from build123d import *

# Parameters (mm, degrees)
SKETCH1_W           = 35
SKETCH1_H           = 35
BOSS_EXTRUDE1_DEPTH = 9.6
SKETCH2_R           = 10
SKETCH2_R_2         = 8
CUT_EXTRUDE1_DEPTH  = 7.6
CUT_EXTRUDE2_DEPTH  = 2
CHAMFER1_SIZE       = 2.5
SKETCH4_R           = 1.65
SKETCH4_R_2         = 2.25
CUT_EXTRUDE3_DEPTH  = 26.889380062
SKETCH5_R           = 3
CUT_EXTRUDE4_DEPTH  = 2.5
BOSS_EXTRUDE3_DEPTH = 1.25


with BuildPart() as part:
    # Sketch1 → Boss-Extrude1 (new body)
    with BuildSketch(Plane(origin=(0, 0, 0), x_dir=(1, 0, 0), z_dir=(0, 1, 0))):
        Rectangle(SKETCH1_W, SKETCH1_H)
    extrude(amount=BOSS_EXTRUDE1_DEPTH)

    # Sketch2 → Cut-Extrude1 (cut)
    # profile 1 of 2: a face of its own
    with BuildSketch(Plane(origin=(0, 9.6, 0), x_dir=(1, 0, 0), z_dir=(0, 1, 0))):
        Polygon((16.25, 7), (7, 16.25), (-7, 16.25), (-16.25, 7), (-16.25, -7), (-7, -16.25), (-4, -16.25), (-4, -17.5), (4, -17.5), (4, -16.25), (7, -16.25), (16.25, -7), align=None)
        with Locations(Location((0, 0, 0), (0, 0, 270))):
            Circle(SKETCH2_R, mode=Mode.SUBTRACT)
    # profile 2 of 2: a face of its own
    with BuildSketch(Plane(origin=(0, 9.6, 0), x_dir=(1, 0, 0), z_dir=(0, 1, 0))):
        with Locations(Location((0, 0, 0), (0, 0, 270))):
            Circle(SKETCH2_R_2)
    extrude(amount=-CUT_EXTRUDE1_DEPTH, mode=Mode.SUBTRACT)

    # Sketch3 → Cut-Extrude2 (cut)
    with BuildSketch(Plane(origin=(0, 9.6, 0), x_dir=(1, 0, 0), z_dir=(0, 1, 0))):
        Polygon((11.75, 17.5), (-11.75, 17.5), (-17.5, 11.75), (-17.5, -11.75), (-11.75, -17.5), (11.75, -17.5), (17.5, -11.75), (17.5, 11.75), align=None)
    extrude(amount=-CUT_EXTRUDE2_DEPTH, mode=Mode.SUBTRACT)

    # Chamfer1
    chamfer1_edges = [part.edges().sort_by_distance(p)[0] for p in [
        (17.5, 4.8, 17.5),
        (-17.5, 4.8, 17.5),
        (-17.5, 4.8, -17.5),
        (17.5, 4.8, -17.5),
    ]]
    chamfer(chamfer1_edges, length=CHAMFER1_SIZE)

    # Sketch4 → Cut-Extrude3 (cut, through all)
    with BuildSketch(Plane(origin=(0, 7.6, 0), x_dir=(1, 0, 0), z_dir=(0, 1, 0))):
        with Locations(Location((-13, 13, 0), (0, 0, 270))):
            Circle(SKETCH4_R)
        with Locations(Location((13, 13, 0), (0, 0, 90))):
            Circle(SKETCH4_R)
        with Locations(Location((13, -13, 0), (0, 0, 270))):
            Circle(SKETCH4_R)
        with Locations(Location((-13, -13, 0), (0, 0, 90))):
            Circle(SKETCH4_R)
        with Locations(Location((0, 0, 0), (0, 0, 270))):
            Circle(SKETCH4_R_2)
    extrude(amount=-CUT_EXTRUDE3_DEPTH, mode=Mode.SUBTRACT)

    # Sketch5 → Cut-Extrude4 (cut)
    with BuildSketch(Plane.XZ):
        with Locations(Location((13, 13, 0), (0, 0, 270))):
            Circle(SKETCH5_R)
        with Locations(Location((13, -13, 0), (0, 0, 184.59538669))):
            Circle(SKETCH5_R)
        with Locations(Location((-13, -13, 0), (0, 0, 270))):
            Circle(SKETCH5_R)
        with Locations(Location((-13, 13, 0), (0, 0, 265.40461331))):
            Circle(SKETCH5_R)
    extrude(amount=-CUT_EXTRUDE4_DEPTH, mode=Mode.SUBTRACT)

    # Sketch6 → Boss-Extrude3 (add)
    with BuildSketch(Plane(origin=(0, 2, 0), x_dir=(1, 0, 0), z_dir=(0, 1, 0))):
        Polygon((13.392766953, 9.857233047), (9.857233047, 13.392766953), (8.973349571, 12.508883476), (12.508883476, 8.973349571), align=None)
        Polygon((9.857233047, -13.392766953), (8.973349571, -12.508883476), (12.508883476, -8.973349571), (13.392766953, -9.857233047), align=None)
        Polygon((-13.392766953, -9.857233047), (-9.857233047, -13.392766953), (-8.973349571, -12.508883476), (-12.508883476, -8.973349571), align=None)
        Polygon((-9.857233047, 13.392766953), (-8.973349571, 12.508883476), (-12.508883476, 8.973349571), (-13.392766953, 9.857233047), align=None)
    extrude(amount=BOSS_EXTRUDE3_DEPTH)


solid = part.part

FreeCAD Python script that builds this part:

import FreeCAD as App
import Part
import Sketcher
from FreeCAD import Vector


def edges_at(feature, points):
    """Names of the edges that pass closest to the given points."""
    edges = feature.Shape.Edges
    near = lambda p: min(range(len(edges)), key=lambda i: edges[i].distToShape(Part.Vertex(*p))[0])
    return sorted({f"Edge{near(p) + 1}" for p in points})

doc = App.newDocument("Part")
body = doc.addObject("PartDesign::Body", "Body")

# Sketch on XZ plane
sketch1 = doc.addObject("Sketcher::SketchObject", "Sketch")
body.addObject(sketch1)
sketch1.AttachmentSupport = (doc.XZ_Plane, [""])
sketch1.MapMode = "FlatFace"
sketch1.addGeometry(Part.LineSegment(Vector(-18, -18, 0), Vector(-18, 18, 0)), False)
sketch1.addGeometry(Part.LineSegment(Vector(-18, 18, 0), Vector(18, 18, 0)), False)
sketch1.addGeometry(Part.LineSegment(Vector(18, 18, 0), Vector(18, -18, 0)), False)
sketch1.addGeometry(Part.LineSegment(Vector(18, -18, 0), Vector(-18, -18, 0)), False)
sketch1.addConstraint(Sketcher.Constraint("Coincident", 0, 2, 1, 1))
sketch1.addConstraint(Sketcher.Constraint("Coincident", 1, 2, 2, 1))
sketch1.addConstraint(Sketcher.Constraint("Coincident", 2, 2, 3, 1))
sketch1.addConstraint(Sketcher.Constraint("Coincident", 3, 2, 0, 1))
sketch1.addConstraint(Sketcher.Constraint("Vertical", 0))
sketch1.addConstraint(Sketcher.Constraint("Horizontal", 1))
sketch1.addConstraint(Sketcher.Constraint("Vertical", 2))
sketch1.addConstraint(Sketcher.Constraint("Horizontal", 3))
sketch1.addConstraint(Sketcher.Constraint("Symmetric", 0, 2, 2, 2, -1, 1))
sketch1.addConstraint(Sketcher.Constraint("Equal", 3, 0))
sketch1.addConstraint(Sketcher.Constraint("DistanceX", 1, 1, 1, 2, 35.0))
pad1 = doc.addObject("PartDesign::Pad", "Pad")
body.addObject(pad1)
pad1.Profile = sketch1
pad1.Length = 9.6
pad1.Reversed = True

# Sketch on XZ plane
sketch2 = doc.addObject("Sketcher::SketchObject", "Sketch001")
body.addObject(sketch2)
sketch2.AttachmentSupport = (doc.XZ_Plane, [""])
sketch2.MapMode = "FlatFace"
sketch2.AttachmentOffset = App.Placement(Vector(0, 0, -9.6), App.Rotation())
sketch2.addGeometry(Part.LineSegment(Vector(16.2, -7, 0), Vector(7, -16.2, 0)), False)
sketch2.addGeometry(Part.LineSegment(Vector(7, -16.2, 0), Vector(-7, -16.2, 0)), False)
sketch2.addGeometry(Part.LineSegment(Vector(-7, -16.2, 0), Vector(-16.2, -7, 0)), False)
sketch2.addGeometry(Part.LineSegment(Vector(-16.2, -7, 0), Vector(-16.2, 7, 0)), False)
sketch2.addGeometry(Part.LineSegment(Vector(-16.2, 7, 0), Vector(-7, 16.2, 0)), False)
sketch2.addGeometry(Part.LineSegment(Vector(-7, 16.2, 0), Vector(-4, 16.2, 0)), False)
sketch2.addGeometry(Part.LineSegment(Vector(-4, 16.2, 0), Vector(-4, 17.5, 0)), False)
sketch2.addGeometry(Part.LineSegment(Vector(-4, 17.5, 0), Vector(4, 17.5, 0)), False)
sketch2.addGeometry(Part.LineSegment(Vector(4, 17.5, 0), Vector(4, 16.2, 0)), False)
sketch2.addGeometry(Part.LineSegment(Vector(4, 16.2, 0), Vector(7, 16.2, 0)), False)
sketch2.addGeometry(Part.LineSegment(Vector(7, 16.2, 0), Vector(16.2, 7, 0)), False)
sketch2.addGeometry(Part.LineSegment(Vector(16.2, 7, 0), Vector(16.2, -7, 0)), False)
sketch2.addGeometry(Part.Circle(Vector(0, 0, 0), Vector(0, 0, 1), 10), False)
sketch2.addGeometry(Part.Circle(Vector(0, 0, 0), Vector(0, 0, 1), 8), False)
sketch2.addConstraint(Sketcher.Constraint("Coincident", 0, 2, 1, 1))
sketch2.addConstraint(Sketcher.Constraint("Coincident", 1, 2, 2, 1))
sketch2.addConstraint(Sketcher.Constraint("Coincident", 2, 2, 3, 1))
sketch2.addConstraint(Sketcher.Constraint("Coincident", 3, 2, 4, 1))
sketch2.addConstraint(Sketcher.Constraint("Coincident", 4, 2, 5, 1))
sketch2.addConstraint(Sketcher.Constraint("Coincident", 5, 2, 6, 1))
sketch2.addConstraint(Sketcher.Constraint("Coincident", 6, 2, 7, 1))
sketch2.addConstraint(Sketcher.Constraint("Coincident", 7, 2, 8, 1))
sketch2.addConstraint(Sketcher.Constraint("Coincident", 8, 2, 9, 1))
sketch2.addConstraint(Sketcher.Constraint("Coincident", 9, 2, 10, 1))
sketch2.addConstraint(Sketcher.Constraint("Coincident", 10, 2, 11, 1))
sketch2.addConstraint(Sketcher.Constraint("Coincident", 11, 2, 0, 1))
sketch2.addConstraint(Sketcher.Constraint("Horizontal", 1))
sketch2.addConstraint(Sketcher.Constraint("Vertical", 3))
sketch2.addConstraint(Sketcher.Constraint("Horizontal", 5))
sketch2.addConstraint(Sketcher.Constraint("Vertical", 6))
sketch2.addConstraint(Sketcher.Constraint("Horizontal", 7))
sketch2.addConstraint(Sketcher.Constraint("Vertical", 8))
sketch2.addConstraint(Sketcher.Constraint("Horizontal", 9))
sketch2.addConstraint(Sketcher.Constraint("Vertical", 11))
sketch2.addConstraint(Sketcher.Constraint("Coincident", 12, 3, -1, 1))
sketch2.addConstraint(Sketcher.Constraint("Coincident", 13, 3, -1, 1))
sketch2.addConstraint(Sketcher.Constraint("Symmetric", 0, 2, 4, 2, -1, 1))
sketch2.addConstraint(Sketcher.Constraint("Symmetric", 1, 2, 9, 2, -1, 1))
sketch2.addConstraint(Sketcher.Constraint("Symmetric", 2, 2, 10, 2, -1, 1))
sketch2.addConstraint(Sketcher.Constraint("Perpendicular", 0, 2))
sketch2.addConstraint(Sketcher.Constraint("Perpendicular", 2, 4))
sketch2.addConstraint(Sketcher.Constraint("Horizontal", 3, 2, 10, 2))
sketch2.addConstraint(Sketcher.Constraint("Vertical", 1, 2, 4, 2))
sketch2.addConstraint(Sketcher.Constraint("Equal", 5, 9))
sketch2.addConstraint(Sketcher.Constraint("Equal", 1, 3))
sketch2.addConstraint(Sketcher.Constraint("Diameter", 12, 20.0))
sketch2.addConstraint(Sketcher.Constraint("Diameter", 13, 16.0))
sketch2.addConstraint(Sketcher.Constraint("DistanceX", 1, 2, 1, 1, 14.0))
sketch2.addConstraint(Sketcher.Constraint("DistanceX", 5, 1, 5, 2, 3.0))
sketch2.addConstraint(Sketcher.Constraint("DistanceY", 6, 1, 6, 2, 1.25))
sketch2.addConstraint(Sketcher.Constraint("DistanceY", -1, 1, 6, 2, 17.5))
pocket1 = doc.addObject("PartDesign::Pocket", "Pocket")
body.addObject(pocket1)
pocket1.Profile = sketch2
pocket1.Length = 7.6
pocket1.Reversed = True

# Sketch on XZ plane
sketch3 = doc.addObject("Sketcher::SketchObject", "Sketch002")
body.addObject(sketch3)
sketch3.AttachmentSupport = (doc.XZ_Plane, [""])
sketch3.MapMode = "FlatFace"
sketch3.AttachmentOffset = App.Placement(Vector(0, 0, -9.6), App.Rotation())
sketch3.addGeometry(Part.LineSegment(Vector(12, -18, 0), Vector(-12, -18, 0)), False)
sketch3.addGeometry(Part.LineSegment(Vector(-12, -18, 0), Vector(-18, -12, 0)), False)
sketch3.addGeometry(Part.LineSegment(Vector(-18, -12, 0), Vector(-18, 12, 0)), False)
sketch3.addGeometry(Part.LineSegment(Vector(-18, 12, 0), Vector(-12, 18, 0)), False)
sketch3.addGeometry(Part.LineSegment(Vector(-12, 18, 0), Vector(12, 18, 0)), False)
sketch3.addGeometry(Part.LineSegment(Vector(12, 18, 0), Vector(18, 12, 0)), False)
sketch3.addGeometry(Part.LineSegment(Vector(18, 12, 0), Vector(18, -12, 0)), False)
sketch3.addGeometry(Part.LineSegment(Vector(18, -12, 0), Vector(12, -18, 0)), False)
sketch3.addConstraint(Sketcher.Constraint("Coincident", 0, 2, 1, 1))
sketch3.addConstraint(Sketcher.Constraint("Coincident", 1, 2, 2, 1))
sketch3.addConstraint(Sketcher.Constraint("Coincident", 2, 2, 3, 1))
sketch3.addConstraint(Sketcher.Constraint("Coincident", 3, 2, 4, 1))
sketch3.addConstraint(Sketcher.Constraint("Coincident", 4, 2, 5, 1))
sketch3.addConstraint(Sketcher.Constraint("Coincident", 5, 2, 6, 1))
sketch3.addConstraint(Sketcher.Constraint("Coincident", 6, 2, 7, 1))
sketch3.addConstraint(Sketcher.Constraint("Coincident", 7, 2, 0, 1))
sketch3.addConstraint(Sketcher.Constraint("Horizontal", 0))
sketch3.addConstraint(Sketcher.Constraint("Vertical", 2))
sketch3.addConstraint(Sketcher.Constraint("Horizontal", 4))
sketch3.addConstraint(Sketcher.Constraint("Vertical", 6))
sketch3.addConstraint(Sketcher.Constraint("Symmetric", 0, 2, 4, 2, -1, 1))
sketch3.addConstraint(Sketcher.Constraint("Symmetric", 1, 2, 5, 2, -1, 1))
sketch3.addConstraint(Sketcher.Constraint("Perpendicular", 1, 3))
sketch3.addConstraint(Sketcher.Constraint("Perpendicular", 5, 7))
sketch3.addConstraint(Sketcher.Constraint("Horizontal", 2, 2, 5, 2))
sketch3.addConstraint(Sketcher.Constraint("Horizontal", 1, 2, 6, 2))
sketch3.addConstraint(Sketcher.Constraint("Vertical", 0, 2, 3, 2))
sketch3.addConstraint(Sketcher.Constraint("Equal", 4, 2))
sketch3.addConstraint(Sketcher.Constraint("DistanceX", 0, 2, 0, 1, 23.5))
sketch3.addConstraint(Sketcher.Constraint("DistanceY", 0, 2, 3, 2, 35.0))
pocket2 = doc.addObject("PartDesign::Pocket", "Pocket001")
body.addObject(pocket2)
pocket2.Profile = sketch3
pocket2.Length = 2
pocket2.Reversed = True
doc.recompute()

chamfer = doc.addObject("PartDesign::Chamfer", "Chamfer")
body.addObject(chamfer)
chamfer.Base = (pocket2, edges_at(pocket2, [
    (17.5, 4.8, 17.5),
    (-17.5, 4.8, 17.5),
    (-17.5, 4.8, -17.5),
    (17.5, 4.8, -17.5),
]))
chamfer.Size = 2.5

# Sketch on XZ plane
sketch4 = doc.addObject("Sketcher::SketchObject", "Sketch003")
body.addObject(sketch4)
sketch4.AttachmentSupport = (doc.XZ_Plane, [""])
sketch4.MapMode = "FlatFace"
sketch4.AttachmentOffset = App.Placement(Vector(0, 0, -7.6), App.Rotation())
sketch4.addGeometry(Part.Circle(Vector(-13, -13, 0), Vector(0, 0, 1), 1.6), False)
sketch4.addGeometry(Part.Circle(Vector(13, -13, 0), Vector(0, 0, 1), 1.6), False)
sketch4.addGeometry(Part.Circle(Vector(13, 13, 0), Vector(0, 0, 1), 1.6), False)
sketch4.addGeometry(Part.Circle(Vector(-13, 13, 0), Vector(0, 0, 1), 1.6), False)
sketch4.addGeometry(Part.Circle(Vector(0, 0, 0), Vector(0, 0, 1), 2.2), False)
sketch4.addConstraint(Sketcher.Constraint("Coincident", 4, 3, -1, 1))
sketch4.addConstraint(Sketcher.Constraint("Equal", 0, 1))
sketch4.addConstraint(Sketcher.Constraint("Equal", 1, 2))
sketch4.addConstraint(Sketcher.Constraint("Equal", 2, 3))
sketch4.addConstraint(Sketcher.Constraint("Symmetric", 0, 3, 2, 3, -1, 1))
sketch4.addConstraint(Sketcher.Constraint("Symmetric", 1, 3, 3, 3, -1, 1))
sketch4.addConstraint(Sketcher.Constraint("Symmetric", 0, 3, 1, 3, -2))
sketch4.addConstraint(Sketcher.Constraint("Diameter", 0, 3.3))
sketch4.addConstraint(Sketcher.Constraint("Diameter", 4, 4.5))
sketch4.addConstraint(Sketcher.Constraint("DistanceX", 0, 3, -1, 1, 13.0))
sketch4.addConstraint(Sketcher.Constraint("DistanceY", 0, 3, -1, 1, 13.0))
pocket3 = doc.addObject("PartDesign::Pocket", "Pocket002")
body.addObject(pocket3)
pocket3.Profile = sketch4
pocket3.Type = "ThroughAll"
pocket3.Reversed = True

# Sketch on XZ plane
sketch5 = doc.addObject("Sketcher::SketchObject", "Sketch004")
body.addObject(sketch5)
sketch5.AttachmentSupport = (doc.XZ_Plane, [""])
sketch5.MapMode = "FlatFace"
sketch5.addGeometry(Part.Circle(Vector(13, 13, 0), Vector(0, 0, 1), 3), False)
sketch5.addGeometry(Part.Circle(Vector(13, -13, 0), Vector(0, 0, 1), 3), False)
sketch5.addGeometry(Part.Circle(Vector(-13, -13, 0), Vector(0, 0, 1), 3), False)
sketch5.addGeometry(Part.Circle(Vector(-13, 13, 0), Vector(0, 0, 1), 3), False)
sketch5.addConstraint(Sketcher.Constraint("Equal", 0, 1))
sketch5.addConstraint(Sketcher.Constraint("Equal", 1, 2))
sketch5.addConstraint(Sketcher.Constraint("Equal", 2, 3))
sketch5.addConstraint(Sketcher.Constraint("Symmetric", 0, 3, 2, 3, -1, 1))
sketch5.addConstraint(Sketcher.Constraint("Symmetric", 1, 3, 3, 3, -1, 1))
sketch5.addConstraint(Sketcher.Constraint("Symmetric", 1, 3, 2, 3, -2))
sketch5.addConstraint(Sketcher.Constraint("Diameter", 0, 6.0))
sketch5.addConstraint(Sketcher.Constraint("DistanceX", -1, 1, 0, 3, 13.0))
sketch5.addConstraint(Sketcher.Constraint("DistanceY", -1, 1, 0, 3, 13.0))
pocket4 = doc.addObject("PartDesign::Pocket", "Pocket003")
body.addObject(pocket4)
pocket4.Profile = sketch5
pocket4.Length = 2.5

# Sketch on XZ plane
sketch6 = doc.addObject("Sketcher::SketchObject", "Sketch005")
body.addObject(sketch6)
sketch6.AttachmentSupport = (doc.XZ_Plane, [""])
sketch6.MapMode = "FlatFace"
sketch6.AttachmentOffset = App.Placement(Vector(0, 0, -2), App.Rotation())
sketch6.addGeometry(Part.LineSegment(Vector(13.4, -9.9, 0), Vector(9.9, -13.4, 0)), False)
sketch6.addGeometry(Part.LineSegment(Vector(9.9, -13.4, 0), Vector(9, -12.5, 0)), False)
sketch6.addGeometry(Part.LineSegment(Vector(9, -12.5, 0), Vector(12.5, -9, 0)), False)
sketch6.addGeometry(Part.LineSegment(Vector(12.5, -9, 0), Vector(13.4, -9.9, 0)), False)
sketch6.addGeometry(Part.LineSegment(Vector(9, 12.5, 0), Vector(9.9, 13.4, 0)), False)
sketch6.addGeometry(Part.LineSegment(Vector(9.9, 13.4, 0), Vector(13.4, 9.9, 0)), False)
sketch6.addGeometry(Part.LineSegment(Vector(13.4, 9.9, 0), Vector(12.5, 9, 0)), False)
sketch6.addGeometry(Part.LineSegment(Vector(12.5, 9, 0), Vector(9, 12.5, 0)), False)
sketch6.addGeometry(Part.LineSegment(Vector(-13.4, 9.9, 0), Vector(-9.9, 13.4, 0)), False)
sketch6.addGeometry(Part.LineSegment(Vector(-9.9, 13.4, 0), Vector(-9, 12.5, 0)), False)
sketch6.addGeometry(Part.LineSegment(Vector(-9, 12.5, 0), Vector(-12.5, 9, 0)), False)
sketch6.addGeometry(Part.LineSegment(Vector(-12.5, 9, 0), Vector(-13.4, 9.9, 0)), False)
sketch6.addGeometry(Part.LineSegment(Vector(-9, -12.5, 0), Vector(-9.9, -13.4, 0)), False)
sketch6.addGeometry(Part.LineSegment(Vector(-9.9, -13.4, 0), Vector(-13.4, -9.9, 0)), False)
sketch6.addGeometry(Part.LineSegment(Vector(-13.4, -9.9, 0), Vector(-12.5, -9, 0)), False)
sketch6.addGeometry(Part.LineSegment(Vector(-12.5, -9, 0), Vector(-9, -12.5, 0)), False)
sketch6.addConstraint(Sketcher.Constraint("Coincident", 0, 2, 1, 1))
sketch6.addConstraint(Sketcher.Constraint("Coincident", 1, 2, 2, 1))
sketch6.addConstraint(Sketcher.Constraint("Coincident", 2, 2, 3, 1))
sketch6.addConstraint(Sketcher.Constraint("Coincident", 3, 2, 0, 1))
sketch6.addConstraint(Sketcher.Constraint("Coincident", 4, 2, 5, 1))
sketch6.addConstraint(Sketcher.Constraint("Coincident", 5, 2, 6, 1))
sketch6.addConstraint(Sketcher.Constraint("Coincident", 6, 2, 7, 1))
sketch6.addConstraint(Sketcher.Constraint("Coincident", 7, 2, 4, 1))
sketch6.addConstraint(Sketcher.Constraint("Coincident", 8, 2, 9, 1))
sketch6.addConstraint(Sketcher.Constraint("Coincident", 9, 2, 10, 1))
sketch6.addConstraint(Sketcher.Constraint("Coincident", 10, 2, 11, 1))
sketch6.addConstraint(Sketcher.Constraint("Coincident", 11, 2, 8, 1))
sketch6.addConstraint(Sketcher.Constraint("Coincident", 12, 2, 13, 1))
sketch6.addConstraint(Sketcher.Constraint("Coincident", 13, 2, 14, 1))
sketch6.addConstraint(Sketcher.Constraint("Coincident", 14, 2, 15, 1))
sketch6.addConstraint(Sketcher.Constraint("Coincident", 15, 2, 12, 1))
sketch6.addConstraint(Sketcher.Constraint("Symmetric", 0, 2, 8, 2, -1, 1))
sketch6.addConstraint(Sketcher.Constraint("Symmetric", 1, 2, 9, 2, -1, 1))
sketch6.addConstraint(Sketcher.Constraint("Symmetric", 2, 2, 10, 2, -1, 1))
sketch6.addConstraint(Sketcher.Constraint("Symmetric", 3, 2, 11, 2, -1, 1))
sketch6.addConstraint(Sketcher.Constraint("Symmetric", 4, 2, 12, 2, -1, 1))
sketch6.addConstraint(Sketcher.Constraint("Symmetric", 5, 2, 13, 2, -1, 1))
sketch6.addConstraint(Sketcher.Constraint("Symmetric", 6, 2, 14, 2, -1, 1))
sketch6.addConstraint(Sketcher.Constraint("Symmetric", 7, 2, 15, 2, -1, 1))
sketch6.addConstraint(Sketcher.Constraint("Symmetric", 4, 2, 8, 2, -2))
sketch6.addConstraint(Sketcher.Constraint("Symmetric", 7, 2, 9, 2, -2))
sketch6.addConstraint(Sketcher.Constraint("Symmetric", 6, 2, 10, 2, -2))
sketch6.addConstraint(Sketcher.Constraint("Symmetric", 5, 2, 11, 2, -2))
sketch6.addConstraint(Sketcher.Constraint("Perpendicular", 0, 1))
sketch6.addConstraint(Sketcher.Constraint("Perpendicular", 1, 2))
sketch6.addConstraint(Sketcher.Constraint("Perpendicular", 2, 3))
sketch6.addConstraint(Sketcher.Constraint("Perpendicular", 3, 4))
sketch6.addConstraint(Sketcher.Constraint("Distance", 0, 5.0))
sketch6.addConstraint(Sketcher.Constraint("Distance", 1, 1.25))
sketch6.addConstraint(Sketcher.Constraint("DistanceY", 3, 2, 4, 2, 23.25))
sketch6.addConstraint(Sketcher.Constraint("DistanceX", 8, 2, 5, 2, 23.25))
pad2 = doc.addObject("PartDesign::Pad", "Pad001")
body.addObject(pad2)
pad2.Profile = sketch6
pad2.Length = 1.25
pad2.Reversed = True

doc.recompute()
